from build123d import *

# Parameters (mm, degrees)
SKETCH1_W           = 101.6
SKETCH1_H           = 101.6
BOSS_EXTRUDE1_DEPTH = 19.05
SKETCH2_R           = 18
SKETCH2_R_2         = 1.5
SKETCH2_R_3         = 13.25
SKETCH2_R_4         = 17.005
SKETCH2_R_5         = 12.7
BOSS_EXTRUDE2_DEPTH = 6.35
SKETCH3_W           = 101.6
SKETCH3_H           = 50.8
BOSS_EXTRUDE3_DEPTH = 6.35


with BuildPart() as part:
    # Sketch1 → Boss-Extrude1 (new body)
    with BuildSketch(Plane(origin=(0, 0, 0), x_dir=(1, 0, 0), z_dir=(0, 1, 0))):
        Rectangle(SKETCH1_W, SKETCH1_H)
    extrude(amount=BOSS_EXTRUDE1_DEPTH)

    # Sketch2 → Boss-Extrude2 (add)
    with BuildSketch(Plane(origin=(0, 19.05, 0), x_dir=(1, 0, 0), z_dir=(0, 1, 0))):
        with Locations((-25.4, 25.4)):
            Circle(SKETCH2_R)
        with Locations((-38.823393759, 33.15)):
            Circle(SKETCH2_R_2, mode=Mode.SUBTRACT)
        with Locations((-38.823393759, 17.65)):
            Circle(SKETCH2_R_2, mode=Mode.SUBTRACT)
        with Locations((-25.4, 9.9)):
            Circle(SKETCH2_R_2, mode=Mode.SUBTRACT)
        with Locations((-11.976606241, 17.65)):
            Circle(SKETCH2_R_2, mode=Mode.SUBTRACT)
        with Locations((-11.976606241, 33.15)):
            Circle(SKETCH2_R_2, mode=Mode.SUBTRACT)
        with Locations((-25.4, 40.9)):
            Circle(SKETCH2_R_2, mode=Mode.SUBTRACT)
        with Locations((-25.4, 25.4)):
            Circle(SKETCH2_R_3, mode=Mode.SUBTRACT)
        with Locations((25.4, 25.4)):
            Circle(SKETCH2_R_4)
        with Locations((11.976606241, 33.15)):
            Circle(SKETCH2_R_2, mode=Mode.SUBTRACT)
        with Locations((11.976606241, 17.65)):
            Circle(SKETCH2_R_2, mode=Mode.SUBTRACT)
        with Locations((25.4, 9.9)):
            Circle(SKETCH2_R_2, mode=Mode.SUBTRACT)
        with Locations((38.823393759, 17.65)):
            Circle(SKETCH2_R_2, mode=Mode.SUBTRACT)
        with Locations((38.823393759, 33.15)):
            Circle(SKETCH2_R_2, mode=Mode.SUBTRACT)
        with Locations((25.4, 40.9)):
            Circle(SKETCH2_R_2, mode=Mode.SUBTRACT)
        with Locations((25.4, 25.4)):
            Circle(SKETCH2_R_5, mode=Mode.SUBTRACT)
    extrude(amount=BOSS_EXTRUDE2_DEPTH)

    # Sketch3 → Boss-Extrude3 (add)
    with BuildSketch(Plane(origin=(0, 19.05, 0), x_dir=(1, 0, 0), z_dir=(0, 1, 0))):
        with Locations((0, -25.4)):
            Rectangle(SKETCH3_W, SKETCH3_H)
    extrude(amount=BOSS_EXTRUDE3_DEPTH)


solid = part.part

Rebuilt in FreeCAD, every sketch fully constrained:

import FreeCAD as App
import Part
import Sketcher
Q = App.Units.Quantity

doc = App.newDocument("Part")
body = doc.addObject("PartDesign::Body", "Body")

sketch1 = body.newObject("Sketcher::SketchObject", "Sketch")
sketch1.AttachmentSupport = (doc.getObject("XZ_Plane"), [""])
sketch1.MapMode = "FlatFace"
sketch1.addGeometry([
    Part.LineSegment(App.Vector(-51, -51, 0), App.Vector(-51, 51, 0)),
    Part.LineSegment(App.Vector(-51, 51, 0), App.Vector(51, 51, 0)),
    Part.LineSegment(App.Vector(51, 51, 0), App.Vector(51, -51, 0)),
    Part.LineSegment(App.Vector(51, -51, 0), App.Vector(-51, -51, 0)),
], False)
sketch1.addConstraint([
    Sketcher.Constraint("Coincident", 0, 2, 1, 1),
    Sketcher.Constraint("Coincident", 1, 2, 2, 1),
    Sketcher.Constraint("Coincident", 2, 2, 3, 1),
    Sketcher.Constraint("Coincident", 3, 2, 0, 1),
    Sketcher.Constraint("Vertical", 0),
    Sketcher.Constraint("Horizontal", 1),
    Sketcher.Constraint("Vertical", 2),
    Sketcher.Constraint("Horizontal", 3),
    Sketcher.Constraint("Symmetric", 0, 2, 2, 2, -1, 1),
    Sketcher.Constraint("Equal", 3, 0),
    Sketcher.Constraint("DistanceX", 1, 1, 1, 2, Q("4 in")),
])
pad1 = body.newObject("PartDesign::Pad", "Pad")
pad1.Profile = sketch1
pad1.Length = Q("0.75 in")
pad1.Reversed = True

sketch2 = body.newObject("Sketcher::SketchObject", "Sketch001")
sketch2.AttachmentSupport = (doc.getObject("XZ_Plane"), [""])
sketch2.MapMode = "FlatFace"
sketch2.AttachmentOffset = App.Placement(App.Vector(0, 0, -0.75 * 25.4), App.Rotation())
sketch2.addGeometry([
    Part.Circle(App.Vector(-25.4, -25.4, 0), App.Vector(0, 0, 1), 18),
    Part.Circle(App.Vector(-38.8, -17.6, 0), App.Vector(0, 0, 1), 1.5),
    Part.Circle(App.Vector(-25.4, -9.9, 0), App.Vector(0, 0, 1), 1.5),
    Part.Circle(App.Vector(-12, -17.6, 0), App.Vector(0, 0, 1), 1.5),
    Part.Circle(App.Vector(-38.8, -33.1, 0), App.Vector(0, 0, 1), 1.5),
    Part.Circle(App.Vector(-25.4, -25.4, 0), App.Vector(0, 0, 1), 13.2),
    Part.Circle(App.Vector(-12, -33.1, 0), App.Vector(0, 0, 1), 1.5),
    Part.Circle(App.Vector(-25.4, -40.9, 0), App.Vector(0, 0, 1), 1.5),
    Part.Circle(App.Vector(25.4, -25.4, 0), App.Vector(0, 0, 1), 17),
    Part.Circle(App.Vector(25.4, -9.9, 0), App.Vector(0, 0, 1), 1.5),
    Part.Circle(App.Vector(12, -17.6, 0), App.Vector(0, 0, 1), 1.5),
    Part.Circle(App.Vector(38.8, -17.6, 0), App.Vector(0, 0, 1), 1.5),
    Part.Circle(App.Vector(12, -33.1, 0), App.Vector(0, 0, 1), 1.5),
    Part.Circle(App.Vector(25.4, -25.4, 0), App.Vector(0, 0, 1), 12.7),
    Part.Circle(App.Vector(25.4, -40.9, 0), App.Vector(0, 0, 1), 1.5),
    Part.Circle(App.Vector(38.8, -33.1, 0), App.Vector(0, 0, 1), 1.5),
], False)
sketch2.addConstraint([
    Sketcher.Constraint("Coincident", 5, 3, 0, 3),
    Sketcher.Constraint("Coincident", 13, 3, 8, 3),
    Sketcher.Constraint("Equal", 1, 2),
    Sketcher.Constraint("Equal", 2, 3),
    Sketcher.Constraint("Equal", 3, 4),
    Sketcher.Constraint("Equal", 4, 6),
    Sketcher.Constraint("Equal", 6, 7),
    Sketcher.Constraint("Equal", 7, 9),
    Sketcher.Constraint("Equal", 9, 10),
    Sketcher.Constraint("Equal", 10, 11),
    Sketcher.Constraint("Equal", 11, 12),
    Sketcher.Constraint("Equal", 12, 14),
    Sketcher.Constraint("Equal", 14, 15),
    Sketcher.Constraint("Symmetric", 0, 3, 8, 3, -2),
    Sketcher.Constraint("Symmetric", 2, 3, 9, 3, -2),
    Sketcher.Constraint("Symmetric", 3, 3, 10, 3, -2),
    Sketcher.Constraint("Symmetric", 1, 3, 11, 3, -2),
    Sketcher.Constraint("Symmetric", 6, 3, 12, 3, -2),
    Sketcher.Constraint("Symmetric", 7, 3, 14, 3, -2),
    Sketcher.Constraint("Symmetric", 4, 3, 15, 3, -2),
    Sketcher.Constraint("Horizontal", 1, 3, 3, 3),
    Sketcher.Constraint("Horizontal", 4, 3, 6, 3),
    Sketcher.Constraint("Vertical", 0, 3, 2, 3),
    Sketcher.Constraint("Vertical", 1, 3, 4, 3),
    Sketcher.Constraint("Vertical", 3, 3, 6, 3),
    Sketcher.Constraint("Vertical", 5, 3, 7, 3),
    Sketcher.Constraint("Diameter", 13, Q("1 in")),
    Sketcher.Constraint("DistanceX", 0, 3, -1, 1, Q("1 in")),
    Sketcher.Constraint("DistanceY", 0, 3, -1, 1, Q("1 in")),
    Sketcher.Constraint("DistanceX", 3, 3, 11, 3, Q("2 in")),
    Sketcher.Constraint("Diameter", 0, 36.0),
    Sketcher.Constraint("Diameter", 1, 3.0),
    Sketcher.Constraint("Diameter", 5, 26.5),
    Sketcher.Constraint("Diameter", 8, 34.01),
    Sketcher.Constraint("DistanceY", 1, 3, -1, 1, 17.65),
    Sketcher.Constraint("DistanceY", 2, 3, -1, 1, 9.9),
    Sketcher.Constraint("DistanceY", 4, 3, -1, 1, 33.15),
    Sketcher.Constraint("DistanceY", 7, 3, -1, 1, 40.9),
    Sketcher.Constraint("DistanceX", 1, 3, -1, 1, 38.823394),
])
pad2 = body.newObject("PartDesign::Pad", "Pad001")
pad2.Profile = sketch2
pad2.Length = Q("0.25 in")
pad2.Reversed = True

sketch3 = body.newObject("Sketcher::SketchObject", "Sketch002")
sketch3.AttachmentSupport = (doc.getObject("XZ_Plane"), [""])
sketch3.MapMode = "FlatFace"
sketch3.AttachmentOffset = App.Placement(App.Vector(0, 0, -0.75 * 25.4), App.Rotation())
sketch3.addGeometry([
    Part.LineSegment(App.Vector(-51, 0, 0), App.Vector(-51, 51, 0)),
    Part.LineSegment(App.Vector(-51, 51, 0), App.Vector(51, 51, 0)),
    Part.LineSegment(App.Vector(51, 51, 0), App.Vector(51, 0, 0)),
    Part.LineSegment(App.Vector(51, 0, 0), App.Vector(-51, 0, 0)),
], False)
sketch3.addConstraint([
    Sketcher.Constraint("Coincident", 0, 2, 1, 1),
    Sketcher.Constraint("Coincident", 1, 2, 2, 1),
    Sketcher.Constraint("Coincident", 2, 2, 3, 1),
    Sketcher.Constraint("Coincident", 3, 2, 0, 1),
    Sketcher.Constraint("Vertical", 0),
    Sketcher.Constraint("Horizontal", 1),
    Sketcher.Constraint("Vertical", 2),
    Sketcher.Constraint("Horizontal", 3),
    Sketcher.Constraint("Symmetric", 2, 2, 3, 2, -1, 1),
    Sketcher.Constraint("DistanceX", 1, 1, 1, 2, Q("4 in")),
    Sketcher.Constraint("DistanceY", 0, 1, 0, 2, Q("2 in")),
])
pad3 = body.newObject("PartDesign::Pad", "Pad002")
pad3.Profile = sketch3
pad3.Length = Q("0.25 in")
pad3.Reversed = True

doc.recompute()
